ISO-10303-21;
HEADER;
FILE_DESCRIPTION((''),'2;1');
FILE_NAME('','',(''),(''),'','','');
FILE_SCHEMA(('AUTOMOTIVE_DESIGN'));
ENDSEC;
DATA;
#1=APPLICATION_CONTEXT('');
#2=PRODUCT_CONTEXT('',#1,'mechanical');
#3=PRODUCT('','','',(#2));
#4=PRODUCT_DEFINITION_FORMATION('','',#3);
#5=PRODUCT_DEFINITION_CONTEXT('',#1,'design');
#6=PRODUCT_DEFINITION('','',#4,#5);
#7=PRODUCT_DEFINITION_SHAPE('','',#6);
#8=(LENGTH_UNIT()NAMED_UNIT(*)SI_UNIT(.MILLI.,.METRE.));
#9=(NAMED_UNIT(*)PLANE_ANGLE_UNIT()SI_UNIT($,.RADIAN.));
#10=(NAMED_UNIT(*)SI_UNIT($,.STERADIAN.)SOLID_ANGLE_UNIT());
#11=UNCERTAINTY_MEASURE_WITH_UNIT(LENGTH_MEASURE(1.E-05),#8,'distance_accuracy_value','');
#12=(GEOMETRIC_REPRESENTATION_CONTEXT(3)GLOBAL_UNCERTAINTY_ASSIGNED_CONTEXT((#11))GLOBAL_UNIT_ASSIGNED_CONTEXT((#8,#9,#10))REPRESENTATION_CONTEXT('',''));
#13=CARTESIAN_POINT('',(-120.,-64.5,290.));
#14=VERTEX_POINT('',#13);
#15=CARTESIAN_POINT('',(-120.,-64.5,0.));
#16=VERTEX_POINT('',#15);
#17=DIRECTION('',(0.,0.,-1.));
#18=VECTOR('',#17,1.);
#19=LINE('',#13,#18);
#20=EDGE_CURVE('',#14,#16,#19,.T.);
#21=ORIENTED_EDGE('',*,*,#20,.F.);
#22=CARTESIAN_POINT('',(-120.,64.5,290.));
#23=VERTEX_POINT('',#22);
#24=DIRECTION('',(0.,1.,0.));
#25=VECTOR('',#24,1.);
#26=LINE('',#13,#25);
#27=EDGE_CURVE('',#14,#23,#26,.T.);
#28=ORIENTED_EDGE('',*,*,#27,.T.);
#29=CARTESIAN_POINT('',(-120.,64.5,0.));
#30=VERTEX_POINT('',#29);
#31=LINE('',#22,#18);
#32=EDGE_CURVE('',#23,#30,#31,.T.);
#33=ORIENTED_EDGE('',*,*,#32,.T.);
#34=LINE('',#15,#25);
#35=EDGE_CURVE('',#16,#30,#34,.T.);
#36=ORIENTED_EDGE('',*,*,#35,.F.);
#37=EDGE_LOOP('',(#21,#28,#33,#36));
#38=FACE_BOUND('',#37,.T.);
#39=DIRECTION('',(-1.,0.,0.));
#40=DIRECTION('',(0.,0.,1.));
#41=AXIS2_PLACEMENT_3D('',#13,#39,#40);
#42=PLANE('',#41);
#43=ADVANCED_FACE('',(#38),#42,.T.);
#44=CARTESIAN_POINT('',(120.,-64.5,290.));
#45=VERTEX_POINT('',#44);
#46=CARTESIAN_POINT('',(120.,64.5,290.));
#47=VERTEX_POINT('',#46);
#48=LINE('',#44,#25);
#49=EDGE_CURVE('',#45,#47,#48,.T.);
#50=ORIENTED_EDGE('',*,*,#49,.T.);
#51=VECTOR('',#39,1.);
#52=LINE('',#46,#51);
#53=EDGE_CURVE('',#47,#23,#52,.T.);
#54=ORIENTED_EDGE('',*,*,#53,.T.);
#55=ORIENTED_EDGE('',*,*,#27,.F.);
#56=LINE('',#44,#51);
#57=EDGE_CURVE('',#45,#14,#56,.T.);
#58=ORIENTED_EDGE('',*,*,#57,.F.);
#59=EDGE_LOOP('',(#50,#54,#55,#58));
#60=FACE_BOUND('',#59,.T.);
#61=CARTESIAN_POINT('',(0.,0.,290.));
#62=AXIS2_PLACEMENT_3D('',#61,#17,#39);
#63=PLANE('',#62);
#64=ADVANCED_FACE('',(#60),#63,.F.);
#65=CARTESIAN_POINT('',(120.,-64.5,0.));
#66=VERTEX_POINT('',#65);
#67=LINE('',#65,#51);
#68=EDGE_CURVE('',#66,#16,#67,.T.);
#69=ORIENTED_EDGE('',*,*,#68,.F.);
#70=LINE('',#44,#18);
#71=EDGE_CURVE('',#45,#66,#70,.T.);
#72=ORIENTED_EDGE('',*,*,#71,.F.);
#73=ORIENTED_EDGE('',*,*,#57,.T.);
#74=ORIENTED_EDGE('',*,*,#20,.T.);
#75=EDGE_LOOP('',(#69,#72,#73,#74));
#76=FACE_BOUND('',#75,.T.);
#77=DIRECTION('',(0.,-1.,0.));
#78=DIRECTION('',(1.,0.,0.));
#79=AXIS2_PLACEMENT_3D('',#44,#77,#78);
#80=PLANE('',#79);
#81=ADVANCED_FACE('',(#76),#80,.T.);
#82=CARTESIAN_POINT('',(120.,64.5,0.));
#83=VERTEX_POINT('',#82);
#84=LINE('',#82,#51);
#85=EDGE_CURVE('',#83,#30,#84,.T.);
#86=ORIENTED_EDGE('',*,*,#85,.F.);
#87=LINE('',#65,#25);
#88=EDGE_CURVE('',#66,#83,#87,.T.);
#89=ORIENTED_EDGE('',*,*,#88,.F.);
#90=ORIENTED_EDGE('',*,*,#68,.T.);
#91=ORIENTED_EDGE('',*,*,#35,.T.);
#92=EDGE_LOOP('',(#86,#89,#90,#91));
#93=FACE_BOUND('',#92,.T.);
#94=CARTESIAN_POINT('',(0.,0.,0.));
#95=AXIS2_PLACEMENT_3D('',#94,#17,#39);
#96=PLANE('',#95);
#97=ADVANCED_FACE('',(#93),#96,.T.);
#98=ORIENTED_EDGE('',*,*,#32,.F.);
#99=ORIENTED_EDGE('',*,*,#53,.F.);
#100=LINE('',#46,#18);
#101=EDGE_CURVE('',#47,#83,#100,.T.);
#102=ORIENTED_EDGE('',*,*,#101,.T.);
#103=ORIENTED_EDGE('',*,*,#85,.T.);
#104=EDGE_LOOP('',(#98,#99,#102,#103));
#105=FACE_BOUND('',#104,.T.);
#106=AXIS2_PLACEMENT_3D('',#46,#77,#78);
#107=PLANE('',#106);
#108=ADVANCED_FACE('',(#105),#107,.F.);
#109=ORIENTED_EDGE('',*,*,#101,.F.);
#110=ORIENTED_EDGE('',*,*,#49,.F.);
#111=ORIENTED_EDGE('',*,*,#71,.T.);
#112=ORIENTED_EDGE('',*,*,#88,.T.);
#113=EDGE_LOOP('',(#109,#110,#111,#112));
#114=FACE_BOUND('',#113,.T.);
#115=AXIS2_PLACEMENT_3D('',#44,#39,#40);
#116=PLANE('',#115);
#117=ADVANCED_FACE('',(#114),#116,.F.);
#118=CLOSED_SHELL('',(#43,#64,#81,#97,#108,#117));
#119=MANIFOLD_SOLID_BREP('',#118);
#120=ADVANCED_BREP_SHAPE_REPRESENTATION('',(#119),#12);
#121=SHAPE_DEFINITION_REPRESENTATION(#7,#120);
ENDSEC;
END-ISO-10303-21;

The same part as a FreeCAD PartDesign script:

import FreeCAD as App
import Part
import Sketcher
Q = App.Units.Quantity

doc = App.newDocument("Part")
body = doc.addObject("PartDesign::Body", "Body")

sketch1 = body.newObject("Sketcher::SketchObject", "Sketch")
sketch1.AttachmentSupport = (doc.getObject("XY_Plane"), [""])
sketch1.MapMode = "FlatFace"
sketch1.addGeometry(Part.LineSegment(App.Vector(-120, 64, 0), App.Vector(-120, -64, 0)), False)
sketch1.addGeometry(Part.LineSegment(App.Vector(-120, -64, 0), App.Vector(120, -64, 0)), False)
sketch1.addGeometry(Part.LineSegment(App.Vector(120, -64, 0), App.Vector(120, 64, 0)), False)
sketch1.addGeometry(Part.LineSegment(App.Vector(120, 64, 0), App.Vector(-120, 64, 0)), False)
sketch1.addConstraint(Sketcher.Constraint("Coincident", 0, 2, 1, 1))
sketch1.addConstraint(Sketcher.Constraint("Coincident", 1, 2, 2, 1))
sketch1.addConstraint(Sketcher.Constraint("Coincident", 2, 2, 3, 1))
sketch1.addConstraint(Sketcher.Constraint("Coincident", 3, 2, 0, 1))
sketch1.addConstraint(Sketcher.Constraint("Vertical", 0))
sketch1.addConstraint(Sketcher.Constraint("Horizontal", 1))
sketch1.addConstraint(Sketcher.Constraint("Vertical", 2))
sketch1.addConstraint(Sketcher.Constraint("Horizontal", 3))
sketch1.addConstraint(Sketcher.Constraint("Symmetric", 0, 2, 2, 2, -1, 1))
sketch1.addConstraint(Sketcher.Constraint("DistanceX", 1, 1, 1, 2, Q("240 mm")))
sketch1.addConstraint(Sketcher.Constraint("DistanceY", 0, 2, 0, 1, Q("129 mm")))
pad1 = body.newObject("PartDesign::Pad", "Pad")
pad1.Profile = sketch1
pad1.Length = 290

doc.recompute()
